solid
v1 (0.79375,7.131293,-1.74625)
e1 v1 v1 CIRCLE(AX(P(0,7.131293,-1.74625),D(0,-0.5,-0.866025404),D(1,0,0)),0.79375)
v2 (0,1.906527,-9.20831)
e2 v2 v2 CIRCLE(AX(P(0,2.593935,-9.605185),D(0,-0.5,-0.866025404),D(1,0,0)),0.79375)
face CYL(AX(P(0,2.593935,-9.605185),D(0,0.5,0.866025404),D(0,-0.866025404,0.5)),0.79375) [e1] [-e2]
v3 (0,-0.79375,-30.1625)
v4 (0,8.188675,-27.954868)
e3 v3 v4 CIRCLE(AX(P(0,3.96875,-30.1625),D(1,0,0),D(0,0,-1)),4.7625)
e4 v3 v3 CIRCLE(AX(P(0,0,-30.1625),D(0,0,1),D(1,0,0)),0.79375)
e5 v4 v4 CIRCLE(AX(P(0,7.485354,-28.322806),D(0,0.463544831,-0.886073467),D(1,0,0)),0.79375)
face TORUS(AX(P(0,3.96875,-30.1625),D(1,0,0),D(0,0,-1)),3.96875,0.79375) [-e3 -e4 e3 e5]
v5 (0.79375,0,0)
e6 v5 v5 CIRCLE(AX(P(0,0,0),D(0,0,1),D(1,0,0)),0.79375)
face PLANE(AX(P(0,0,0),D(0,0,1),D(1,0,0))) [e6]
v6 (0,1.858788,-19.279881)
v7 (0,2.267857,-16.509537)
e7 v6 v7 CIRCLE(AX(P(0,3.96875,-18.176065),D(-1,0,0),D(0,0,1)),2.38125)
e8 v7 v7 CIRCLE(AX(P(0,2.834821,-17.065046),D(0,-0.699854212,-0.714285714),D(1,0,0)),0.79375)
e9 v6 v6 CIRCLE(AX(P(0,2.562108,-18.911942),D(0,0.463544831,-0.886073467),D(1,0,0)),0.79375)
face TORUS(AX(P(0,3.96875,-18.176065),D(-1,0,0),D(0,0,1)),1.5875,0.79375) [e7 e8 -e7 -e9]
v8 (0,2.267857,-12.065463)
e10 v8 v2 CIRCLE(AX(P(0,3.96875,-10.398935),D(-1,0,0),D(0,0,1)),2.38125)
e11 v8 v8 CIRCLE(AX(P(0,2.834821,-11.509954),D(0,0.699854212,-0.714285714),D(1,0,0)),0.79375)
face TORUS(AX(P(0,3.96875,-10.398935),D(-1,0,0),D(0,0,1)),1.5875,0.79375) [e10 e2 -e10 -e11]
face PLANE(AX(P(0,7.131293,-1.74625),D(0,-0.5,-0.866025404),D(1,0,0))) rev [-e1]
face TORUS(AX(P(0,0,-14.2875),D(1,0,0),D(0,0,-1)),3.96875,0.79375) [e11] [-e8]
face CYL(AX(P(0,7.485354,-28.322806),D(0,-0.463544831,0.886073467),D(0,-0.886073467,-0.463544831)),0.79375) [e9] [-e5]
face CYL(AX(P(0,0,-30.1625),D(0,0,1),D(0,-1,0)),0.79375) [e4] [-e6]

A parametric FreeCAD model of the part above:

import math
import FreeCAD as App
import Part
import Sketcher
from FreeCAD import Vector
Q = App.Units.Quantity

doc = App.newDocument("Part")
body = doc.addObject("PartDesign::Body", "Body")

# Sketch on XY plane
sketch1 = body.newObject("Sketcher::SketchObject", "Sketch")
sketch1.AttachmentSupport = (doc.getObject("XY_Plane"), [""])
sketch1.MapMode = "FlatFace"
sketch1.addGeometry(Part.Circle(Vector(0, 0, 0), Vector(0, 0, 1), 0.8), False)
sketch1.addConstraint(Sketcher.Constraint("Coincident", 0, 3, -1, 1))
sketch1.addConstraint(Sketcher.Constraint("Diameter", 0, Q("0.0625 in")))

# Sketch on YZ plane
sketch2 = body.newObject("Sketcher::SketchObject", "Sketch001")
sketch2.AttachmentSupport = (doc.getObject("YZ_Plane"), [""])
sketch2.MapMode = "FlatFace"
sketch2.addGeometry(Part.LineSegment(Vector(0, 0, 0), Vector(0, -30.2, 0)), False)
sketch2.addGeometry(Part.ArcOfCircle(Part.Circle(Vector(4, -30.2, 0), Vector(0, 0, 1), 4), math.radians(180), math.radians(388)), False)
sketch2.addGeometry(Part.LineSegment(Vector(7.5, -28.3, 0), Vector(2.6, -18.9, 0)), False)
sketch2.addGeometry(Part.ArcOfCircle(Part.Circle(Vector(4, -18.2, 0), Vector(0, 0, 1), 1.6), math.radians(136), math.radians(208)), False)
sketch2.addGeometry(Part.ArcOfCircle(Part.Circle(Vector(0, -14.3, 0), Vector(0, 0, 1), 4), math.radians(-44), math.radians(44)), False)
sketch2.addGeometry(Part.ArcOfCircle(Part.Circle(Vector(4, -10.4, 0), Vector(0, 0, 1), 1.6), math.radians(150), math.radians(224)), False)
sketch2.addGeometry(Part.LineSegment(Vector(2.6, -9.6, 0), Vector(7.1, -1.7, 0)), False)
sketch2.addConstraint(Sketcher.Constraint("Tangent", 0, 2, 1, 1))
sketch2.addConstraint(Sketcher.Constraint("Tangent", 1, 2, 2, 1))
sketch2.addConstraint(Sketcher.Constraint("Tangent", 2, 2, 3, 2))
sketch2.addConstraint(Sketcher.Constraint("Tangent", 3, 1, 4, 1))
sketch2.addConstraint(Sketcher.Constraint("Tangent", 4, 2, 5, 2))
sketch2.addConstraint(Sketcher.Constraint("Tangent", 5, 1, 6, 1))
sketch2.addConstraint(Sketcher.Constraint("Vertical", 0))
sketch2.addConstraint(Sketcher.Constraint("Coincident", 0, 1, -1, 1))
sketch2.addConstraint(Sketcher.Constraint("Equal", 1, 4))
sketch2.addConstraint(Sketcher.Constraint("Equal", 3, 5))
sketch2.addConstraint(Sketcher.Constraint("PointOnObject", 4, 3, -2))
sketch2.addConstraint(Sketcher.Constraint("Vertical", 1, 3, 3, 3))
sketch2.addConstraint(Sketcher.Constraint("Vertical", 3, 3, 5, 3))
sketch2.addConstraint(Sketcher.Constraint("Angle", 6, Q("60 deg")))
sketch2.addConstraint(Sketcher.Constraint("Radius", 1, Q("0.15625 in")))
sketch2.addConstraint(Sketcher.Constraint("Radius", 3, Q("0.0625 in")))
sketch2.addConstraint(Sketcher.Constraint("DistanceY", 0, 2, 0, 1, Q("1.1875 in")))
sketch2.addConstraint(Sketcher.Constraint("DistanceY", 4, 3, -1, 1, Q("0.5625 in")))
sketch2.addConstraint(Sketcher.Constraint("DistanceY", 6, 2, -1, 1, Q("1.74625 mm")))
doc.recompute()

additivepipe = body.newObject("PartDesign::AdditivePipe", "AdditivePipe")
additivepipe.Profile = sketch1
additivepipe.Spine = (sketch2, ["Edge1", "Edge2", "Edge3", "Edge4", "Edge5", "Edge6", "Edge7"])

doc.recompute()
